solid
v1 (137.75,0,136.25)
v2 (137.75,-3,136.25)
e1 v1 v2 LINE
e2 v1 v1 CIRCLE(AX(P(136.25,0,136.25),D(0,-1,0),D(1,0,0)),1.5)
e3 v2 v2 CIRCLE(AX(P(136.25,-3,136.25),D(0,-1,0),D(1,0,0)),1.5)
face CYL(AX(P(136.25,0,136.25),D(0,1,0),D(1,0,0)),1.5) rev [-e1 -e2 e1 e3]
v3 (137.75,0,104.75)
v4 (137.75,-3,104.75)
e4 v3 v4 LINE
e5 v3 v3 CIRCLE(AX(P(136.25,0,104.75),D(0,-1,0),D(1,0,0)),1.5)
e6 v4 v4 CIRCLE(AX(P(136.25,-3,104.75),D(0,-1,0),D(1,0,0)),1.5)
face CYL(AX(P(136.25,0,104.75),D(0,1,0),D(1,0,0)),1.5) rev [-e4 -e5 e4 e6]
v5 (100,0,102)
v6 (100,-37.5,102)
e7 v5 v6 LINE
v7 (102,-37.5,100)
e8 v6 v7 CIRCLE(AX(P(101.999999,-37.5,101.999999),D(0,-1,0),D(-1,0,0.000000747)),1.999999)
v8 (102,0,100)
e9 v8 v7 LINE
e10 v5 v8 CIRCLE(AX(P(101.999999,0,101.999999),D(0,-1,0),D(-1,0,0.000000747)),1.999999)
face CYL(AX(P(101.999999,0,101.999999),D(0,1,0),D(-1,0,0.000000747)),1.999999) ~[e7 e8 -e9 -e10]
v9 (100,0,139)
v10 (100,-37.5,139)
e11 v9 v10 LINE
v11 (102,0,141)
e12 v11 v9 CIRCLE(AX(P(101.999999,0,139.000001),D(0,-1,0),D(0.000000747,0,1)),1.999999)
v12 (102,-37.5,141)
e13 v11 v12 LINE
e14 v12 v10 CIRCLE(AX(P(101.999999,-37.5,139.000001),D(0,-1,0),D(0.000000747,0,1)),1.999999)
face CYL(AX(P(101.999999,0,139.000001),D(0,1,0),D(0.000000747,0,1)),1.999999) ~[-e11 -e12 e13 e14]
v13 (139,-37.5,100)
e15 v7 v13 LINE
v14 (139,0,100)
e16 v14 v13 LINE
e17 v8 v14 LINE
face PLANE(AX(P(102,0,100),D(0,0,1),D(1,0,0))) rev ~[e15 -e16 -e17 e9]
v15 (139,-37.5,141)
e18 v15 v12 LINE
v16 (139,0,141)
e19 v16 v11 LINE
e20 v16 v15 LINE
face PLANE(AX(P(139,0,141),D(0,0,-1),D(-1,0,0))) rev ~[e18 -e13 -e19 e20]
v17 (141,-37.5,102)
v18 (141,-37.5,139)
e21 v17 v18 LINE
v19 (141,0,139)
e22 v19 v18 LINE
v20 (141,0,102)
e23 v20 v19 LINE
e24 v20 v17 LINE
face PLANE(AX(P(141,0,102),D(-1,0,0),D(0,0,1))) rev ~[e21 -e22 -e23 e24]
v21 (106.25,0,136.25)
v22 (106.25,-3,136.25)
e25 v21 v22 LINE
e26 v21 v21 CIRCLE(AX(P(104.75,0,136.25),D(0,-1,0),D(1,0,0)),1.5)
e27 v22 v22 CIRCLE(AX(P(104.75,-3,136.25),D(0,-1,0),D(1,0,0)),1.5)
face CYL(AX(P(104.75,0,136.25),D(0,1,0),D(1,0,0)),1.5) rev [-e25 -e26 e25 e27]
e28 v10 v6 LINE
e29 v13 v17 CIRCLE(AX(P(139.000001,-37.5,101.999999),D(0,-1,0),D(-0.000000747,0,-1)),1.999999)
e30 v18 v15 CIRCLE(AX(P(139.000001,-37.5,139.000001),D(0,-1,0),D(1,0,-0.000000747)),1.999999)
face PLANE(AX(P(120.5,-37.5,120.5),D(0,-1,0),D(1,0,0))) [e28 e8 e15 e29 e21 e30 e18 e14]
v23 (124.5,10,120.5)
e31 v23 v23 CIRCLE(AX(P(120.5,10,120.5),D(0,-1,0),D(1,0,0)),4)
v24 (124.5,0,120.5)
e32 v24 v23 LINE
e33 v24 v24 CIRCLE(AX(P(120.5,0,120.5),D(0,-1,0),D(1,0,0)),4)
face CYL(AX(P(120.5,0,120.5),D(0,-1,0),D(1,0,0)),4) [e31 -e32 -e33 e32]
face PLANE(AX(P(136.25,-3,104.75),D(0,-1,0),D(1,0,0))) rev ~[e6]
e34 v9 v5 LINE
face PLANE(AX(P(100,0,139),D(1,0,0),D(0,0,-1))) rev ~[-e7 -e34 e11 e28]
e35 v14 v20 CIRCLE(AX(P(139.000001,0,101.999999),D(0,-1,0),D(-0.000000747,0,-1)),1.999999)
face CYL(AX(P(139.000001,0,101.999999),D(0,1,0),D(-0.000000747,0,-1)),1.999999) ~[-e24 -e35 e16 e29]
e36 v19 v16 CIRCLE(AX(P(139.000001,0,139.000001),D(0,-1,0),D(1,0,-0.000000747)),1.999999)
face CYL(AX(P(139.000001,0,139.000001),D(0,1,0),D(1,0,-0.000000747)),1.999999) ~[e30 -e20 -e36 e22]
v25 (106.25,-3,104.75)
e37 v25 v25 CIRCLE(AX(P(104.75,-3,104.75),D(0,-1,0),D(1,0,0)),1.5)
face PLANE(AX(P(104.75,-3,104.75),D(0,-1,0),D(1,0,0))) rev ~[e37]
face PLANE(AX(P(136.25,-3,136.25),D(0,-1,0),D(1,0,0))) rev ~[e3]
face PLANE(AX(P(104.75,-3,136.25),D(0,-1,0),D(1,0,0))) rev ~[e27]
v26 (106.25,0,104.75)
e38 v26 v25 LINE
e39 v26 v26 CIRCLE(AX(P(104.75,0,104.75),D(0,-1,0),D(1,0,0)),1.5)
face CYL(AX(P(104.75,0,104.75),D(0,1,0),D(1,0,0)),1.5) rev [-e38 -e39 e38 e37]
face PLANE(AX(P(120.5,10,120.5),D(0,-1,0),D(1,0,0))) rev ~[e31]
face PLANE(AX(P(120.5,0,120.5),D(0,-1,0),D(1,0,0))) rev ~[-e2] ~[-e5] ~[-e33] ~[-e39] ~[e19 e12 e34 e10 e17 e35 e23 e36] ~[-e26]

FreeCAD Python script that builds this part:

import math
import FreeCAD as App
import Part
import Sketcher

doc = App.newDocument("Part")
params = doc.addObject("Spreadsheet::Sheet", "Params")
for row, (alias, value) in enumerate([
    ("sketch1_radius", "1.999999 mm"),
    ("sketch1_width", "37 mm"),
    ("pad1_length", "37.5 mm"),
    ("sketch2_diameter", "3 mm"),
    ("pocket1_length", "3 mm"),
    ("sketch3_diameter", "8 mm"),
    ("pad2_length", "10 mm"),
], start=1):
    params.set(f"A{row}", alias)
    params.set(f"B{row}", "=" + value)
    params.setAlias(f"B{row}", alias)

body = doc.addObject("PartDesign::Body", "Body")

sketch1 = body.newObject("Sketcher::SketchObject", "Sketch")
sketch1.AttachmentSupport = (doc.getObject("XZ_Plane"), [""])
sketch1.MapMode = "FlatFace"
sketch1.addGeometry(Part.ArcOfCircle(Part.Circle(App.Vector(101.999999, 101.999999, 0), App.Vector(0, 0, 1), 1.999999), math.radians(179.999957), math.radians(270.000043)), False)
sketch1.addGeometry(Part.LineSegment(App.Vector(102, 100, 0), App.Vector(139, 100, 0)), False)
sketch1.addGeometry(Part.ArcOfCircle(Part.Circle(App.Vector(139.000001, 101.999999, 0), App.Vector(0, 0, 1), 1.999999), math.radians(-90.000043), math.radians(0.000043)), False)
sketch1.addGeometry(Part.LineSegment(App.Vector(141, 102, 0), App.Vector(141, 139, 0)), False)
sketch1.addGeometry(Part.ArcOfCircle(Part.Circle(App.Vector(139.000001, 139.000001, 0), App.Vector(0, 0, 1), 1.999999), math.radians(-0.000043), math.radians(90.000043)), False)
sketch1.addGeometry(Part.LineSegment(App.Vector(139, 141, 0), App.Vector(102, 141, 0)), False)
sketch1.addGeometry(Part.ArcOfCircle(Part.Circle(App.Vector(101.999999, 139.000001, 0), App.Vector(0, 0, 1), 1.999999), math.radians(89.999957), math.radians(180.000043)), False)
sketch1.addGeometry(Part.LineSegment(App.Vector(100, 139, 0), App.Vector(100, 102, 0)), False)
sketch1.addConstraint(Sketcher.Constraint("Tangent", 0, 2, 1, 1))
sketch1.addConstraint(Sketcher.Constraint("Tangent", 1, 2, 2, 1))
sketch1.addConstraint(Sketcher.Constraint("Tangent", 2, 2, 3, 1))
sketch1.addConstraint(Sketcher.Constraint("Tangent", 3, 2, 4, 1))
sketch1.addConstraint(Sketcher.Constraint("Tangent", 4, 2, 5, 1))
sketch1.addConstraint(Sketcher.Constraint("Tangent", 5, 2, 6, 1))
sketch1.addConstraint(Sketcher.Constraint("Tangent", 6, 2, 7, 1))
sketch1.addConstraint(Sketcher.Constraint("Tangent", 7, 2, 0, 1))
sketch1.addConstraint(Sketcher.Constraint("Horizontal", 1))
sketch1.addConstraint(Sketcher.Constraint("Vertical", 3))
sketch1.addConstraint(Sketcher.Constraint("Horizontal", 5))
sketch1.addConstraint(Sketcher.Constraint("Vertical", 7))
sketch1.addConstraint(Sketcher.Constraint("Equal", 0, 2))
sketch1.addConstraint(Sketcher.Constraint("Equal", 2, 4))
sketch1.addConstraint(Sketcher.Constraint("Equal", 4, 6))
sketch1.addConstraint(Sketcher.Constraint("Equal", 5, 3))
sketch1.addConstraint(Sketcher.Constraint("Radius", 0, 1.999999))
sketch1.addConstraint(Sketcher.Constraint("DistanceX", 1, 1, 1, 2, 37.0))
sketch1.addConstraint(Sketcher.Constraint("DistanceX", -1, 1, 0, 3, 101.999999))
sketch1.addConstraint(Sketcher.Constraint("DistanceY", -1, 1, 0, 3, 101.999999))
sketch1.setExpression("Constraints[16]", "Params.sketch1_radius")
sketch1.setExpression("Constraints[17]", "Params.sketch1_width")
pad1 = body.newObject("PartDesign::Pad", "Pad")
pad1.Profile = sketch1
pad1.setExpression("Length", "Params.pad1_length")

sketch2 = body.newObject("Sketcher::SketchObject", "Sketch001")
sketch2.AttachmentSupport = (doc.getObject("XZ_Plane"), [""])
sketch2.MapMode = "FlatFace"
sketch2.addGeometry(Part.Circle(App.Vector(136.25, 104.75, 0), App.Vector(0, 0, 1), 1.5), False)
sketch2.addGeometry(Part.Circle(App.Vector(104.75, 104.75, 0), App.Vector(0, 0, 1), 1.5), False)
sketch2.addGeometry(Part.Circle(App.Vector(136.25, 136.25, 0), App.Vector(0, 0, 1), 1.5), False)
sketch2.addGeometry(Part.Circle(App.Vector(104.75, 136.25, 0), App.Vector(0, 0, 1), 1.5), False)
sketch2.addConstraint(Sketcher.Constraint("Equal", 0, 1))
sketch2.addConstraint(Sketcher.Constraint("Equal", 1, 2))
sketch2.addConstraint(Sketcher.Constraint("Equal", 2, 3))
sketch2.addConstraint(Sketcher.Constraint("Horizontal", 0, 3, 1, 3))
sketch2.addConstraint(Sketcher.Constraint("Horizontal", 2, 3, 3, 3))
sketch2.addConstraint(Sketcher.Constraint("Vertical", 0, 3, 2, 3))
sketch2.addConstraint(Sketcher.Constraint("Vertical", 1, 3, 3, 3))
sketch2.addConstraint(Sketcher.Constraint("Diameter", 0, 3.0))
sketch2.addConstraint(Sketcher.Constraint("DistanceX", 1, 3, 0, 3, 31.5))
sketch2.addConstraint(Sketcher.Constraint("DistanceY", 0, 3, 2, 3, 31.5))
sketch2.addConstraint(Sketcher.Constraint("DistanceX", -1, 1, 0, 3, 136.25))
sketch2.addConstraint(Sketcher.Constraint("DistanceY", -1, 1, 0, 3, 104.75))
sketch2.setExpression("Constraints[7]", "Params.sketch2_diameter")
pocket1 = body.newObject("PartDesign::Pocket", "Pocket")
pocket1.Profile = sketch2
pocket1.setExpression("Length", "Params.pocket1_length")
pocket1.Reversed = True

sketch3 = body.newObject("Sketcher::SketchObject", "Sketch002")
sketch3.AttachmentSupport = (doc.getObject("XZ_Plane"), [""])
sketch3.MapMode = "FlatFace"
sketch3.addGeometry(Part.Circle(App.Vector(120.5, 120.5, 0), App.Vector(0, 0, 1), 4), False)
sketch3.addConstraint(Sketcher.Constraint("Diameter", 0, 8.0))
sketch3.addConstraint(Sketcher.Constraint("DistanceX", -1, 1, 0, 3, 120.5))
sketch3.addConstraint(Sketcher.Constraint("DistanceY", -1, 1, 0, 3, 120.5))
sketch3.setExpression("Constraints[0]", "Params.sketch3_diameter")
pad2 = body.newObject("PartDesign::Pad", "Pad001")
pad2.Profile = sketch3
pad2.setExpression("Length", "Params.pad2_length")
pad2.Reversed = True

doc.recompute()
